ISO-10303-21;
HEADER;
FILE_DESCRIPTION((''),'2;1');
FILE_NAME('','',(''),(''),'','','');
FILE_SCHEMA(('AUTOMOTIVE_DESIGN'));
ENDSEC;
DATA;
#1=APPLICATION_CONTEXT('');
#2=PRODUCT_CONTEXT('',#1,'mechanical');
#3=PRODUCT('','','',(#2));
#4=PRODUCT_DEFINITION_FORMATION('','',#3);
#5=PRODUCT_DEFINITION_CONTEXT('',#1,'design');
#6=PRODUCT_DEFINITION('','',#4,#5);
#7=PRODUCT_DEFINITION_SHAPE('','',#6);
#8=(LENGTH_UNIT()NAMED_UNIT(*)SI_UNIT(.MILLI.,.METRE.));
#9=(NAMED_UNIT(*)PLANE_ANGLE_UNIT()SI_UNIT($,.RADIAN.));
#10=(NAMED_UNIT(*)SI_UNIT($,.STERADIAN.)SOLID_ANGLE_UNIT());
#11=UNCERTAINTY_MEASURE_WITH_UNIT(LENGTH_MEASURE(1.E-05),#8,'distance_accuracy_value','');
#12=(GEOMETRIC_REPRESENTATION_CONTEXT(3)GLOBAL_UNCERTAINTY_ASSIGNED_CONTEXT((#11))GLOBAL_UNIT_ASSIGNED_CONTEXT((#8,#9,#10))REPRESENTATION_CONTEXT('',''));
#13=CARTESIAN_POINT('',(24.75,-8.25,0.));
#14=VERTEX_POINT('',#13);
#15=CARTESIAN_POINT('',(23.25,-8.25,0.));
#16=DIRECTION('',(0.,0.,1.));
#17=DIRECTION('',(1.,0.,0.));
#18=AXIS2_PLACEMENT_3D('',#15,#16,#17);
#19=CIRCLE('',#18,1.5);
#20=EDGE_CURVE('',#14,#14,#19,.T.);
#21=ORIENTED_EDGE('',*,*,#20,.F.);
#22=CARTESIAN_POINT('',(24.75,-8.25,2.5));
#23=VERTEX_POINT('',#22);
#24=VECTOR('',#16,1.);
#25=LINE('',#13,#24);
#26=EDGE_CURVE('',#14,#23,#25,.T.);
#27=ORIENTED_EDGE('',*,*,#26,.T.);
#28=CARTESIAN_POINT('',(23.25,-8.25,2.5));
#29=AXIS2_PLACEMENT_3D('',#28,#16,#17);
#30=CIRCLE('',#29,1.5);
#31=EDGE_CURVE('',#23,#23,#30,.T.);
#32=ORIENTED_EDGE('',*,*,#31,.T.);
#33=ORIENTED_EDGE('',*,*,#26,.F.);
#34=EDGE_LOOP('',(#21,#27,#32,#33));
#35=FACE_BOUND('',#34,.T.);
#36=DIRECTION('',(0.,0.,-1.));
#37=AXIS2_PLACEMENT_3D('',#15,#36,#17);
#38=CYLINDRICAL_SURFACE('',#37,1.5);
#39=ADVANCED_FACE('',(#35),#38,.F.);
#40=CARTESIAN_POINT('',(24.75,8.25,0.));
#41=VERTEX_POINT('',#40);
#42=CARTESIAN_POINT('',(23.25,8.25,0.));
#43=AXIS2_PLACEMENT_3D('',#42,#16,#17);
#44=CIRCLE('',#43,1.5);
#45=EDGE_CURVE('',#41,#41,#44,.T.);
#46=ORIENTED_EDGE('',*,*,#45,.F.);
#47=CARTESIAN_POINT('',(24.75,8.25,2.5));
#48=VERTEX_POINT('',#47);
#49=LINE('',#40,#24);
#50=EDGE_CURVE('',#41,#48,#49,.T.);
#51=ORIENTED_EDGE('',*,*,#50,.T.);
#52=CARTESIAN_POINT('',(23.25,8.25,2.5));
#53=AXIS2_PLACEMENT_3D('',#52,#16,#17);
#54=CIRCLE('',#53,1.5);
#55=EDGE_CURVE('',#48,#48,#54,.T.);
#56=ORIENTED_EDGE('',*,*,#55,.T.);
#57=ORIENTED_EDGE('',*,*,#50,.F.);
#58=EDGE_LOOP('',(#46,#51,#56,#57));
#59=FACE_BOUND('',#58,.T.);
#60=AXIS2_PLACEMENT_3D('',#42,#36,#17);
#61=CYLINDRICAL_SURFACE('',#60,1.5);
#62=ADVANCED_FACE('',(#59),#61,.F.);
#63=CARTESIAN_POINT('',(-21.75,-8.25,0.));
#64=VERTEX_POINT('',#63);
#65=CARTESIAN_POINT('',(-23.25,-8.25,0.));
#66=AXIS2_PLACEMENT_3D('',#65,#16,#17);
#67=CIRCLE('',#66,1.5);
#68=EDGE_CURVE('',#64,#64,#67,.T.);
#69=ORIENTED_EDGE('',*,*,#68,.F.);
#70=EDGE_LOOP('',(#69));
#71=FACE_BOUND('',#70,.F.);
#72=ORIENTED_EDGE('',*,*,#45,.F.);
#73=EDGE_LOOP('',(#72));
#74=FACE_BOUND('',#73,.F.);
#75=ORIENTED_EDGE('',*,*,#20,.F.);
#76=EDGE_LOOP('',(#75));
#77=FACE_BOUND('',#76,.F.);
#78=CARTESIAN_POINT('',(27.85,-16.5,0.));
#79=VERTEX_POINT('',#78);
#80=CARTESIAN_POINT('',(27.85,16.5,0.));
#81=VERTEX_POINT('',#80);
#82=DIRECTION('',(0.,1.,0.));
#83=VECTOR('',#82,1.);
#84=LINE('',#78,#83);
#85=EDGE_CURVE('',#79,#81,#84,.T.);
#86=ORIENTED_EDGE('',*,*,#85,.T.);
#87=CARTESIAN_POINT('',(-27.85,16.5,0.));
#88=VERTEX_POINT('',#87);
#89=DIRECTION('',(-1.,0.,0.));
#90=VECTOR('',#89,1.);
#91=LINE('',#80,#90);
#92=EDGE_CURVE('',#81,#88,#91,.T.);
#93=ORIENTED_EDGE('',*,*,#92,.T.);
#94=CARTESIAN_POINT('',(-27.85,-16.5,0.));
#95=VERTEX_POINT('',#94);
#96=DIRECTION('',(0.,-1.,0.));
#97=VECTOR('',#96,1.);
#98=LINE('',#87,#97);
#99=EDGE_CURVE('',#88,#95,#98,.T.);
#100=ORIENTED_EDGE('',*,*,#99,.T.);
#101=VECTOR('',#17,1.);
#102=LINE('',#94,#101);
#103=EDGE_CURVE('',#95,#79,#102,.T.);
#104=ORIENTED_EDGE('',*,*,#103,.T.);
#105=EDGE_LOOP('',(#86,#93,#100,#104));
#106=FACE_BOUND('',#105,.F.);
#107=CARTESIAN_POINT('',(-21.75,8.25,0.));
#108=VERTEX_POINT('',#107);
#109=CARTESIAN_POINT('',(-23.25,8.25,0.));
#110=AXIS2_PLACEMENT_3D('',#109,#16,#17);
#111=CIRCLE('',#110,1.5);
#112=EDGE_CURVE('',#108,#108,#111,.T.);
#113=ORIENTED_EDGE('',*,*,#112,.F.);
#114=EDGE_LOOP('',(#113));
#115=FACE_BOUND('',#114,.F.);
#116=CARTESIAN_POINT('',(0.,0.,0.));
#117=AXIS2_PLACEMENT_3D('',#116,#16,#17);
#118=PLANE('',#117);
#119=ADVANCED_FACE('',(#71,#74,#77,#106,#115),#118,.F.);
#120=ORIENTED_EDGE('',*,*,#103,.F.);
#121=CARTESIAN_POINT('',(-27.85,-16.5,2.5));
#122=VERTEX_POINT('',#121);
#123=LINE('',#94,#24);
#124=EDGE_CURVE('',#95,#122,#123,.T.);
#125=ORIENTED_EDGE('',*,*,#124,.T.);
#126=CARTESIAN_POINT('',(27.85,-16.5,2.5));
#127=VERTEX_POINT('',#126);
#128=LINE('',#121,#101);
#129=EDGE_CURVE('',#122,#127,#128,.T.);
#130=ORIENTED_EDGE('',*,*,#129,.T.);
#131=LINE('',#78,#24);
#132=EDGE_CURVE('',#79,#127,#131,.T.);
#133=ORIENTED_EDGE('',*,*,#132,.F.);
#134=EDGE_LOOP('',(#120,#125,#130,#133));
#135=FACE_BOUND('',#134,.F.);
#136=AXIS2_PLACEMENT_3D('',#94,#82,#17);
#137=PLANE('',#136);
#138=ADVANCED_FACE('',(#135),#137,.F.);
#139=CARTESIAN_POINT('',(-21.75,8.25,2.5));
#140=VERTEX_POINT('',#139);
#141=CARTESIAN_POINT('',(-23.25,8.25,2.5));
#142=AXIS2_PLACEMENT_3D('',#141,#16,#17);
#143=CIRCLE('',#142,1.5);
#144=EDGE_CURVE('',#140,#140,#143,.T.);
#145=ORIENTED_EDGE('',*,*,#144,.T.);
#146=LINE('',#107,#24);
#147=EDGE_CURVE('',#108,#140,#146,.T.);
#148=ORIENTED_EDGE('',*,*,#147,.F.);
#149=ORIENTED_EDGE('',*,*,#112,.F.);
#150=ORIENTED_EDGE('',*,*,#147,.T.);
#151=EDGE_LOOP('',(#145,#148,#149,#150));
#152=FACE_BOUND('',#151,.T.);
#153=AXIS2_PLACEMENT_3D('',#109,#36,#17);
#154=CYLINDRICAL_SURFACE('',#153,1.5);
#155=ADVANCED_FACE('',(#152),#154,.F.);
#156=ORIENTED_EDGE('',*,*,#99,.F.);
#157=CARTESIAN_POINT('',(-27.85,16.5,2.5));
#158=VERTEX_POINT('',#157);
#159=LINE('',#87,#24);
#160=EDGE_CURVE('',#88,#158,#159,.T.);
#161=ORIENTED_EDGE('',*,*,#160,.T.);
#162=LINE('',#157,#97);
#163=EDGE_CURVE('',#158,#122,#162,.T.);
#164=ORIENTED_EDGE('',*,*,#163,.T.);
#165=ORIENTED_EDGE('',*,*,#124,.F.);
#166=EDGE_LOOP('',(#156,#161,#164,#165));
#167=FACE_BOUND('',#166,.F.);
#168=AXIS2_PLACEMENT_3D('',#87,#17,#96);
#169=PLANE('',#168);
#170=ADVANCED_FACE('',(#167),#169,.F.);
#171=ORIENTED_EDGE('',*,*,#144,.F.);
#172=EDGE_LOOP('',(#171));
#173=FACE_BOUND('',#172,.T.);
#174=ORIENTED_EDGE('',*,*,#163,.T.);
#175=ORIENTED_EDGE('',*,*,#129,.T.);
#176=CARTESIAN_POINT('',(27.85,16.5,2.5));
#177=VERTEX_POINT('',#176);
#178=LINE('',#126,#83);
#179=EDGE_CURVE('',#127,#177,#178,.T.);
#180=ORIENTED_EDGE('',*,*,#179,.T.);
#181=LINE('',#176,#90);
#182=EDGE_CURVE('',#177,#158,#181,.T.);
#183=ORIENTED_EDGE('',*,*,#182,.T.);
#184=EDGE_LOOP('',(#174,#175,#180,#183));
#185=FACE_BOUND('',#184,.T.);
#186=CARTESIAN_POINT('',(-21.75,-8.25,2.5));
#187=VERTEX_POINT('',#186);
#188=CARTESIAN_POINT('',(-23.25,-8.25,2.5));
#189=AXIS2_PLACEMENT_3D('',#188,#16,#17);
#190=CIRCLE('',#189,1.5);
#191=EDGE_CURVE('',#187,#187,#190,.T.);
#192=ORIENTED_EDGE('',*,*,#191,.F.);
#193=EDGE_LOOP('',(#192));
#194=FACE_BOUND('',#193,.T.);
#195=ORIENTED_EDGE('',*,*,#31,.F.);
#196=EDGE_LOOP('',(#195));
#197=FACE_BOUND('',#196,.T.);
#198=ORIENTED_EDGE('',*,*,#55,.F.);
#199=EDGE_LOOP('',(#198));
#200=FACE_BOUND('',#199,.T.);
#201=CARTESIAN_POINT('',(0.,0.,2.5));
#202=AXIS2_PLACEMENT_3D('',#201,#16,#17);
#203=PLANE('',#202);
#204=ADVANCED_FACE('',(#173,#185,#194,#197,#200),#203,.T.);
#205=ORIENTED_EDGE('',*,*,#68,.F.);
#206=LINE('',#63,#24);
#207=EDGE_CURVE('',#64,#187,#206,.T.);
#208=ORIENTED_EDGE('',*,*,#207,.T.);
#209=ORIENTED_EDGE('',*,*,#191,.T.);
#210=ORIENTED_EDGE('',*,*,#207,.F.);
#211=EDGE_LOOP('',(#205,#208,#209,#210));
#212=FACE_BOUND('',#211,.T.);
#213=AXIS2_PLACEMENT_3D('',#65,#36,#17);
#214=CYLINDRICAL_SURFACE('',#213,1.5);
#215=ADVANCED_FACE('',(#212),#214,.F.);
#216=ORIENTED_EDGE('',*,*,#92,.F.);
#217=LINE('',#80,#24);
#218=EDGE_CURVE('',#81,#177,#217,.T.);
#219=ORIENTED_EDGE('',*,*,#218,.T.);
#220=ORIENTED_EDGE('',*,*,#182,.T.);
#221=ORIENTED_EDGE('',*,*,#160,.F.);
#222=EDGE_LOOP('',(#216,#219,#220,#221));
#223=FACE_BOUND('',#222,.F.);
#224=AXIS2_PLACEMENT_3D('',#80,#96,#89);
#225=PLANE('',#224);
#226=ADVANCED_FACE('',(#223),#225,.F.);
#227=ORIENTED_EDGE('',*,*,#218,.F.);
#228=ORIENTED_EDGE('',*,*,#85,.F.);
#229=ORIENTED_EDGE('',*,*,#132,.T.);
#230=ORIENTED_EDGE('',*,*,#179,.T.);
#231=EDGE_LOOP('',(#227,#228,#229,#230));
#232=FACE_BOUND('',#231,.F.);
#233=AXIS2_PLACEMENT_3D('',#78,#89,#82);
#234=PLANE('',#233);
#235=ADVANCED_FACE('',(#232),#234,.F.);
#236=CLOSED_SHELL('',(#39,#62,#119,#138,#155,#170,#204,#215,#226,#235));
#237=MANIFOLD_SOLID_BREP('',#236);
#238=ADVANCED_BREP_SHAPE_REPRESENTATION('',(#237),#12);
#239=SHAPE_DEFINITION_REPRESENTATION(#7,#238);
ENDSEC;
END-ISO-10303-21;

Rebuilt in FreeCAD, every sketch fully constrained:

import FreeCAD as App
import Part
import Sketcher

V = App.Vector
Q = App.Units.Quantity

doc = App.newDocument("Part")
body = doc.addObject("PartDesign::Body", "Body")

sketch1 = body.newObject("Sketcher::SketchObject", "Sketch")
sketch1.AttachmentSupport = (doc.getObject("XY_Plane"), [""])
sketch1.MapMode = "FlatFace"
sketch1.addGeometry([
    Part.LineSegment(V(-27.9, 16.5, 0), V(-27.9, -16.5, 0)),
    Part.LineSegment(V(-27.9, -16.5, 0), V(27.9, -16.5, 0)),
    Part.LineSegment(V(27.9, -16.5, 0), V(27.9, 16.5, 0)),
    Part.LineSegment(V(27.9, 16.5, 0), V(-27.9, 16.5, 0)),
    Part.Circle(V(-23.2, -8.2, 0), V(0, 0, 1), 1.5),
    Part.Circle(V(23.2, -8.2, 0), V(0, 0, 1), 1.5),
    Part.Circle(V(-23.2, 8.2, 0), V(0, 0, 1), 1.5),
    Part.Circle(V(23.2, 8.2, 0), V(0, 0, 1), 1.5),
], False)
sketch1.addConstraint([
    Sketcher.Constraint("Coincident", 0, 2, 1, 1),
    Sketcher.Constraint("Coincident", 1, 2, 2, 1),
    Sketcher.Constraint("Coincident", 2, 2, 3, 1),
    Sketcher.Constraint("Coincident", 3, 2, 0, 1),
    Sketcher.Constraint("Vertical", 0),
    Sketcher.Constraint("Horizontal", 1),
    Sketcher.Constraint("Vertical", 2),
    Sketcher.Constraint("Horizontal", 3),
    Sketcher.Constraint("Equal", 4, 5),
    Sketcher.Constraint("Equal", 5, 6),
    Sketcher.Constraint("Equal", 6, 7),
    Sketcher.Constraint("Symmetric", 5, 3, 6, 3, -1, 1),
    Sketcher.Constraint("Symmetric", 4, 3, 7, 3, -1, 1),
    Sketcher.Constraint("Symmetric", 0, 2, 2, 2, -1, 1),
    Sketcher.Constraint("Symmetric", 4, 3, 5, 3, -2),
    Sketcher.Constraint("Diameter", 4, Q("3 mm")),
    Sketcher.Constraint("DistanceY", 0, 2, 0, 1, Q("33 mm")),
    Sketcher.Constraint("DistanceX", 1, 1, 1, 2, Q("55.7 mm")),
    Sketcher.Constraint("DistanceX", 4, 3, -1, 1, Q("23.25 mm")),
    Sketcher.Constraint("DistanceY", 4, 3, -1, 1, Q("8.25 mm")),
])
pad1 = body.newObject("PartDesign::Pad", "Pad")
pad1.Profile = sketch1
pad1.Length = 2.5

doc.recompute()
